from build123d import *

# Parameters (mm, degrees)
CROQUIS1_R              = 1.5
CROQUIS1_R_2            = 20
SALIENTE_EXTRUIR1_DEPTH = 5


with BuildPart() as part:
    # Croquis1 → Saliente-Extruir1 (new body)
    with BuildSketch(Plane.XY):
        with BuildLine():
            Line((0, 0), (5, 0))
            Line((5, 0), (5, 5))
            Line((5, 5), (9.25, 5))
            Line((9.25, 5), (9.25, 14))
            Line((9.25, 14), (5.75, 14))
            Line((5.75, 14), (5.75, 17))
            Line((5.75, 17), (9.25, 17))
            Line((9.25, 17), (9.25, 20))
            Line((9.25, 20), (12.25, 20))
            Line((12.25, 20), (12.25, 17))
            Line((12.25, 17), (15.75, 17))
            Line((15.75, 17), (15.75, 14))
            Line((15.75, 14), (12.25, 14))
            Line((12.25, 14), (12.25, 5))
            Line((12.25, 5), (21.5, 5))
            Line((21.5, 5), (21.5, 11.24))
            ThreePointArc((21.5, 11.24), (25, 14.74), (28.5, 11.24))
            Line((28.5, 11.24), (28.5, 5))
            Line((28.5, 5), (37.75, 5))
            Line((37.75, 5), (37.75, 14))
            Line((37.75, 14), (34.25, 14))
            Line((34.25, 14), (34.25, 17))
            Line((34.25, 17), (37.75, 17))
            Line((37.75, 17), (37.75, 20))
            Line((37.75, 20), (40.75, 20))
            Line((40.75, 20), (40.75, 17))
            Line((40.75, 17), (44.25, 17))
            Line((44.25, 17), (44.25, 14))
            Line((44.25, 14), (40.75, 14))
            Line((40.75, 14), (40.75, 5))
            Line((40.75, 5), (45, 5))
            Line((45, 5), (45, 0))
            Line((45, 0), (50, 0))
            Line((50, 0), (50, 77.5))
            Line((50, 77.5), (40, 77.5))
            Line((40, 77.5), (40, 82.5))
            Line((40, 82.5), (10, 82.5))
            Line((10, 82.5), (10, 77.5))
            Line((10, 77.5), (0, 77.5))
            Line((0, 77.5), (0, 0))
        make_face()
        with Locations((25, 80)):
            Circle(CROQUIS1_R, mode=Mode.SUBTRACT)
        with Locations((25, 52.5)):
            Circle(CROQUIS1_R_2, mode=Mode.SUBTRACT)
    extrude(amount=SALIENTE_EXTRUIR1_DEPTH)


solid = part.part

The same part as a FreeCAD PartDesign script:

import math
import FreeCAD as App
import Part
import Sketcher
from FreeCAD import Vector
Q = App.Units.Quantity

doc = App.newDocument("Part")
body = doc.addObject("PartDesign::Body", "Body")

# Sketch on XY plane
sketch1 = body.newObject("Sketcher::SketchObject", "Sketch")
sketch1.AttachmentSupport = (doc.getObject("XY_Plane"), [""])
sketch1.MapMode = "FlatFace"
sketch1.addGeometry([
    Part.LineSegment(Vector(0, 0, 0), Vector(5, 0, 0)),  # 0
    Part.LineSegment(Vector(5, 0, 0), Vector(5, 5, 0)),  # 1
    Part.LineSegment(Vector(5, 5, 0), Vector(9.2, 5, 0)),  # 2
    Part.LineSegment(Vector(9.2, 5, 0), Vector(9.2, 14, 0)),  # 3
    Part.LineSegment(Vector(9.2, 14, 0), Vector(5.8, 14, 0)),  # 4
    Part.LineSegment(Vector(5.8, 14, 0), Vector(5.8, 17, 0)),  # 5
    Part.LineSegment(Vector(5.8, 17, 0), Vector(9.2, 17, 0)),  # 6
    Part.LineSegment(Vector(9.2, 17, 0), Vector(9.2, 20, 0)),  # 7
    Part.LineSegment(Vector(9.2, 20, 0), Vector(12.2, 20, 0)),  # 8
    Part.LineSegment(Vector(12.2, 20, 0), Vector(12.2, 17, 0)),  # 9
    Part.LineSegment(Vector(12.2, 17, 0), Vector(15.8, 17, 0)),  # 10
    Part.LineSegment(Vector(15.8, 17, 0), Vector(15.8, 14, 0)),  # 11
    Part.LineSegment(Vector(15.8, 14, 0), Vector(12.2, 14, 0)),  # 12
    Part.LineSegment(Vector(12.2, 14, 0), Vector(12.2, 5, 0)),  # 13
    Part.LineSegment(Vector(12.2, 5, 0), Vector(21.5, 5, 0)),  # 14
    Part.LineSegment(Vector(21.5, 5, 0), Vector(21.5, 11.2, 0)),  # 15
    Part.ArcOfCircle(Part.Circle(Vector(25, 11.2, 0), Vector(0, 0, 1), 3.5), math.radians(0), math.radians(180)),  # 16
    Part.LineSegment(Vector(28.5, 11.2, 0), Vector(28.5, 5, 0)),  # 17
    Part.LineSegment(Vector(28.5, 5, 0), Vector(37.8, 5, 0)),  # 18
    Part.LineSegment(Vector(37.8, 5, 0), Vector(37.8, 14, 0)),  # 19
    Part.LineSegment(Vector(37.8, 14, 0), Vector(34.2, 14, 0)),  # 20
    Part.LineSegment(Vector(34.2, 14, 0), Vector(34.2, 17, 0)),  # 21
    Part.LineSegment(Vector(34.2, 17, 0), Vector(37.8, 17, 0)),  # 22
    Part.LineSegment(Vector(37.8, 17, 0), Vector(37.8, 20, 0)),  # 23
    Part.LineSegment(Vector(37.8, 20, 0), Vector(40.8, 20, 0)),  # 24
    Part.LineSegment(Vector(40.8, 20, 0), Vector(40.8, 17, 0)),  # 25
    Part.LineSegment(Vector(40.8, 17, 0), Vector(44.2, 17, 0)),  # 26
    Part.LineSegment(Vector(44.2, 17, 0), Vector(44.2, 14, 0)),  # 27
    Part.LineSegment(Vector(44.2, 14, 0), Vector(40.8, 14, 0)),  # 28
    Part.LineSegment(Vector(40.8, 14, 0), Vector(40.8, 5, 0)),  # 29
    Part.LineSegment(Vector(40.8, 5, 0), Vector(45, 5, 0)),  # 30
    Part.LineSegment(Vector(45, 5, 0), Vector(45, 0, 0)),  # 31
    Part.LineSegment(Vector(45, 0, 0), Vector(50, 0, 0)),  # 32
    Part.LineSegment(Vector(50, 0, 0), Vector(50, 77.5, 0)),  # 33
    Part.LineSegment(Vector(50, 77.5, 0), Vector(40, 77.5, 0)),  # 34
    Part.LineSegment(Vector(40, 77.5, 0), Vector(40, 82.5, 0)),  # 35
    Part.LineSegment(Vector(40, 82.5, 0), Vector(10, 82.5, 0)),  # 36
    Part.LineSegment(Vector(10, 82.5, 0), Vector(10, 77.5, 0)),  # 37
    Part.LineSegment(Vector(10, 77.5, 0), Vector(0, 77.5, 0)),  # 38
    Part.LineSegment(Vector(0, 77.5, 0), Vector(0, 0, 0)),  # 39
    Part.Circle(Vector(25, 52.5, 0), Vector(0, 0, 1), 20),  # 40
    Part.Circle(Vector(25, 80, 0), Vector(0, 0, 1), 1.5),  # 41
], False)
sketch1.addConstraint([
    Sketcher.Constraint("Coincident", 0, 2, 1, 1),
    Sketcher.Constraint("Coincident", 1, 2, 2, 1),
    Sketcher.Constraint("Coincident", 2, 2, 3, 1),
    Sketcher.Constraint("Coincident", 3, 2, 4, 1),
    Sketcher.Constraint("Coincident", 4, 2, 5, 1),
    Sketcher.Constraint("Coincident", 5, 2, 6, 1),
    Sketcher.Constraint("Coincident", 6, 2, 7, 1),
    Sketcher.Constraint("Coincident", 7, 2, 8, 1),
    Sketcher.Constraint("Coincident", 8, 2, 9, 1),
    Sketcher.Constraint("Coincident", 9, 2, 10, 1),
    Sketcher.Constraint("Coincident", 10, 2, 11, 1),
    Sketcher.Constraint("Coincident", 11, 2, 12, 1),
    Sketcher.Constraint("Coincident", 12, 2, 13, 1),
    Sketcher.Constraint("Coincident", 13, 2, 14, 1),
    Sketcher.Constraint("Coincident", 14, 2, 15, 1),
    Sketcher.Constraint("Tangent", 15, 2, 16, 2),
    Sketcher.Constraint("Tangent", 16, 1, 17, 1),
    Sketcher.Constraint("Coincident", 17, 2, 18, 1),
    Sketcher.Constraint("Coincident", 18, 2, 19, 1),
    Sketcher.Constraint("Coincident", 19, 2, 20, 1),
    Sketcher.Constraint("Coincident", 20, 2, 21, 1),
    Sketcher.Constraint("Coincident", 21, 2, 22, 1),
    Sketcher.Constraint("Coincident", 22, 2, 23, 1),
    Sketcher.Constraint("Coincident", 23, 2, 24, 1),
    Sketcher.Constraint("Coincident", 24, 2, 25, 1),
    Sketcher.Constraint("Coincident", 25, 2, 26, 1),
    Sketcher.Constraint("Coincident", 26, 2, 27, 1),
    Sketcher.Constraint("Coincident", 27, 2, 28, 1),
    Sketcher.Constraint("Coincident", 28, 2, 29, 1),
    Sketcher.Constraint("Coincident", 29, 2, 30, 1),
    Sketcher.Constraint("Coincident", 30, 2, 31, 1),
    Sketcher.Constraint("Coincident", 31, 2, 32, 1),
    Sketcher.Constraint("Coincident", 32, 2, 33, 1),
    Sketcher.Constraint("Coincident", 33, 2, 34, 1),
    Sketcher.Constraint("Coincident", 34, 2, 35, 1),
    Sketcher.Constraint("Coincident", 35, 2, 36, 1),
    Sketcher.Constraint("Coincident", 36, 2, 37, 1),
    Sketcher.Constraint("Coincident", 37, 2, 38, 1),
    Sketcher.Constraint("Coincident", 38, 2, 39, 1),
    Sketcher.Constraint("Coincident", 39, 2, 0, 1),
    Sketcher.Constraint("Horizontal", 0),
    Sketcher.Constraint("Vertical", 1),
    Sketcher.Constraint("Horizontal", 2),
    Sketcher.Constraint("Vertical", 3),
    Sketcher.Constraint("Horizontal", 4),
    Sketcher.Constraint("Vertical", 5),
    Sketcher.Constraint("Horizontal", 6),
    Sketcher.Constraint("Vertical", 7),
    Sketcher.Constraint("Horizontal", 8),
    Sketcher.Constraint("Vertical", 9),
    Sketcher.Constraint("Horizontal", 10),
    Sketcher.Constraint("Vertical", 11),
    Sketcher.Constraint("Horizontal", 12),
    Sketcher.Constraint("Vertical", 13),
    Sketcher.Constraint("Horizontal", 14),
    Sketcher.Constraint("Vertical", 15),
    Sketcher.Constraint("Vertical", 17),
    Sketcher.Constraint("Horizontal", 18),
    Sketcher.Constraint("Vertical", 19),
    Sketcher.Constraint("Horizontal", 20),
    Sketcher.Constraint("Vertical", 21),
    Sketcher.Constraint("Horizontal", 22),
    Sketcher.Constraint("Vertical", 23),
    Sketcher.Constraint("Horizontal", 24),
    Sketcher.Constraint("Vertical", 25),
    Sketcher.Constraint("Horizontal", 26),
    Sketcher.Constraint("Vertical", 27),
    Sketcher.Constraint("Horizontal", 28),
    Sketcher.Constraint("Vertical", 29),
    Sketcher.Constraint("Horizontal", 30),
    Sketcher.Constraint("Vertical", 31),
    Sketcher.Constraint("Horizontal", 32),
    Sketcher.Constraint("Vertical", 33),
    Sketcher.Constraint("Horizontal", 34),
    Sketcher.Constraint("Vertical", 35),
    Sketcher.Constraint("Horizontal", 36),
    Sketcher.Constraint("Vertical", 37),
    Sketcher.Constraint("Horizontal", 38),
    Sketcher.Constraint("Vertical", 39),
    Sketcher.Constraint("Coincident", 39, 2, -1, 1),
    Sketcher.Constraint("PointOnObject", 31, 2, -1),
    Sketcher.Constraint("Horizontal", 6, 2, 9, 2),
    Sketcher.Constraint("Horizontal", 4, 2, 11, 2),
    Sketcher.Constraint("Horizontal", 2, 2, 13, 2),
    Sketcher.Constraint("Horizontal", 14, 2, 17, 2),
    Sketcher.Constraint("Horizontal", 12, 2, 19, 2),
    Sketcher.Constraint("Horizontal", 10, 2, 21, 2),
    Sketcher.Constraint("Horizontal", 8, 2, 23, 2),
    Sketcher.Constraint("Horizontal", 22, 2, 25, 2),
    Sketcher.Constraint("Horizontal", 20, 2, 27, 2),
    Sketcher.Constraint("Horizontal", 18, 2, 29, 2),
    Sketcher.Constraint("Horizontal", 34, 2, 37, 2),
    Sketcher.Constraint("Vertical", 16, 3, 40, 3),
    Sketcher.Constraint("Vertical", 40, 3, 41, 3),
    Sketcher.Constraint("Vertical", 3, 2, 6, 2),
    Sketcher.Constraint("Vertical", 9, 2, 12, 2),
    Sketcher.Constraint("Vertical", 19, 2, 22, 2),
    Sketcher.Constraint("Vertical", 25, 2, 28, 2),
    Sketcher.Constraint("Equal", 6, 10),
    Sketcher.Constraint("Equal", 14, 18),
    Sketcher.Constraint("Equal", 12, 20),
    Sketcher.Constraint("Equal", 8, 24),
    Sketcher.Constraint("Equal", 22, 26),
    Sketcher.Constraint("Equal", 2, 30),
    Sketcher.Constraint("Equal", 0, 32),
    Sketcher.Constraint("Equal", 34, 38),
    Sketcher.Constraint("Equal", 32, 1),
    Sketcher.Constraint("Equal", 24, 5),
    Sketcher.Constraint("Equal", 5, 7),
    Sketcher.Constraint("Equal", 31, 35),
    Sketcher.Constraint("Diameter", 40, Q("40 mm")),
    Sketcher.Constraint("Diameter", 41, Q("3 mm")),
    Sketcher.Constraint("Radius", 16, Q("3.5 mm")),
    Sketcher.Constraint("DistanceX", 0, 1, 0, 2, Q("5 mm")),
    Sketcher.Constraint("DistanceX", 8, 1, 8, 2, Q("3 mm")),
    Sketcher.Constraint("DistanceX", 34, 2, 34, 1, Q("10 mm")),
    Sketcher.Constraint("DistanceX", 36, 2, 36, 1, Q("30 mm")),
    Sketcher.Constraint("DistanceY", 3, 1, 3, 2, Q("9 mm")),
    Sketcher.Constraint("DistanceX", 4, 2, 4, 1, Q("3.5 mm")),
    Sketcher.Constraint("DistanceY", 33, 1, 33, 2, Q("77.5 mm")),
    Sketcher.Constraint("DistanceY", -1, 1, 41, 3, Q("80 mm")),
    Sketcher.Constraint("DistanceY", 40, 3, 33, 2, Q("25 mm")),
    Sketcher.Constraint("DistanceX", 2, 1, 2, 2, Q("4.25 mm")),
    Sketcher.Constraint("DistanceY", 15, 1, 15, 2, Q("6.24 mm")),
])
pad1 = body.newObject("PartDesign::Pad", "Pad")
pad1.Profile = sketch1
pad1.Length = 5

doc.recompute()
